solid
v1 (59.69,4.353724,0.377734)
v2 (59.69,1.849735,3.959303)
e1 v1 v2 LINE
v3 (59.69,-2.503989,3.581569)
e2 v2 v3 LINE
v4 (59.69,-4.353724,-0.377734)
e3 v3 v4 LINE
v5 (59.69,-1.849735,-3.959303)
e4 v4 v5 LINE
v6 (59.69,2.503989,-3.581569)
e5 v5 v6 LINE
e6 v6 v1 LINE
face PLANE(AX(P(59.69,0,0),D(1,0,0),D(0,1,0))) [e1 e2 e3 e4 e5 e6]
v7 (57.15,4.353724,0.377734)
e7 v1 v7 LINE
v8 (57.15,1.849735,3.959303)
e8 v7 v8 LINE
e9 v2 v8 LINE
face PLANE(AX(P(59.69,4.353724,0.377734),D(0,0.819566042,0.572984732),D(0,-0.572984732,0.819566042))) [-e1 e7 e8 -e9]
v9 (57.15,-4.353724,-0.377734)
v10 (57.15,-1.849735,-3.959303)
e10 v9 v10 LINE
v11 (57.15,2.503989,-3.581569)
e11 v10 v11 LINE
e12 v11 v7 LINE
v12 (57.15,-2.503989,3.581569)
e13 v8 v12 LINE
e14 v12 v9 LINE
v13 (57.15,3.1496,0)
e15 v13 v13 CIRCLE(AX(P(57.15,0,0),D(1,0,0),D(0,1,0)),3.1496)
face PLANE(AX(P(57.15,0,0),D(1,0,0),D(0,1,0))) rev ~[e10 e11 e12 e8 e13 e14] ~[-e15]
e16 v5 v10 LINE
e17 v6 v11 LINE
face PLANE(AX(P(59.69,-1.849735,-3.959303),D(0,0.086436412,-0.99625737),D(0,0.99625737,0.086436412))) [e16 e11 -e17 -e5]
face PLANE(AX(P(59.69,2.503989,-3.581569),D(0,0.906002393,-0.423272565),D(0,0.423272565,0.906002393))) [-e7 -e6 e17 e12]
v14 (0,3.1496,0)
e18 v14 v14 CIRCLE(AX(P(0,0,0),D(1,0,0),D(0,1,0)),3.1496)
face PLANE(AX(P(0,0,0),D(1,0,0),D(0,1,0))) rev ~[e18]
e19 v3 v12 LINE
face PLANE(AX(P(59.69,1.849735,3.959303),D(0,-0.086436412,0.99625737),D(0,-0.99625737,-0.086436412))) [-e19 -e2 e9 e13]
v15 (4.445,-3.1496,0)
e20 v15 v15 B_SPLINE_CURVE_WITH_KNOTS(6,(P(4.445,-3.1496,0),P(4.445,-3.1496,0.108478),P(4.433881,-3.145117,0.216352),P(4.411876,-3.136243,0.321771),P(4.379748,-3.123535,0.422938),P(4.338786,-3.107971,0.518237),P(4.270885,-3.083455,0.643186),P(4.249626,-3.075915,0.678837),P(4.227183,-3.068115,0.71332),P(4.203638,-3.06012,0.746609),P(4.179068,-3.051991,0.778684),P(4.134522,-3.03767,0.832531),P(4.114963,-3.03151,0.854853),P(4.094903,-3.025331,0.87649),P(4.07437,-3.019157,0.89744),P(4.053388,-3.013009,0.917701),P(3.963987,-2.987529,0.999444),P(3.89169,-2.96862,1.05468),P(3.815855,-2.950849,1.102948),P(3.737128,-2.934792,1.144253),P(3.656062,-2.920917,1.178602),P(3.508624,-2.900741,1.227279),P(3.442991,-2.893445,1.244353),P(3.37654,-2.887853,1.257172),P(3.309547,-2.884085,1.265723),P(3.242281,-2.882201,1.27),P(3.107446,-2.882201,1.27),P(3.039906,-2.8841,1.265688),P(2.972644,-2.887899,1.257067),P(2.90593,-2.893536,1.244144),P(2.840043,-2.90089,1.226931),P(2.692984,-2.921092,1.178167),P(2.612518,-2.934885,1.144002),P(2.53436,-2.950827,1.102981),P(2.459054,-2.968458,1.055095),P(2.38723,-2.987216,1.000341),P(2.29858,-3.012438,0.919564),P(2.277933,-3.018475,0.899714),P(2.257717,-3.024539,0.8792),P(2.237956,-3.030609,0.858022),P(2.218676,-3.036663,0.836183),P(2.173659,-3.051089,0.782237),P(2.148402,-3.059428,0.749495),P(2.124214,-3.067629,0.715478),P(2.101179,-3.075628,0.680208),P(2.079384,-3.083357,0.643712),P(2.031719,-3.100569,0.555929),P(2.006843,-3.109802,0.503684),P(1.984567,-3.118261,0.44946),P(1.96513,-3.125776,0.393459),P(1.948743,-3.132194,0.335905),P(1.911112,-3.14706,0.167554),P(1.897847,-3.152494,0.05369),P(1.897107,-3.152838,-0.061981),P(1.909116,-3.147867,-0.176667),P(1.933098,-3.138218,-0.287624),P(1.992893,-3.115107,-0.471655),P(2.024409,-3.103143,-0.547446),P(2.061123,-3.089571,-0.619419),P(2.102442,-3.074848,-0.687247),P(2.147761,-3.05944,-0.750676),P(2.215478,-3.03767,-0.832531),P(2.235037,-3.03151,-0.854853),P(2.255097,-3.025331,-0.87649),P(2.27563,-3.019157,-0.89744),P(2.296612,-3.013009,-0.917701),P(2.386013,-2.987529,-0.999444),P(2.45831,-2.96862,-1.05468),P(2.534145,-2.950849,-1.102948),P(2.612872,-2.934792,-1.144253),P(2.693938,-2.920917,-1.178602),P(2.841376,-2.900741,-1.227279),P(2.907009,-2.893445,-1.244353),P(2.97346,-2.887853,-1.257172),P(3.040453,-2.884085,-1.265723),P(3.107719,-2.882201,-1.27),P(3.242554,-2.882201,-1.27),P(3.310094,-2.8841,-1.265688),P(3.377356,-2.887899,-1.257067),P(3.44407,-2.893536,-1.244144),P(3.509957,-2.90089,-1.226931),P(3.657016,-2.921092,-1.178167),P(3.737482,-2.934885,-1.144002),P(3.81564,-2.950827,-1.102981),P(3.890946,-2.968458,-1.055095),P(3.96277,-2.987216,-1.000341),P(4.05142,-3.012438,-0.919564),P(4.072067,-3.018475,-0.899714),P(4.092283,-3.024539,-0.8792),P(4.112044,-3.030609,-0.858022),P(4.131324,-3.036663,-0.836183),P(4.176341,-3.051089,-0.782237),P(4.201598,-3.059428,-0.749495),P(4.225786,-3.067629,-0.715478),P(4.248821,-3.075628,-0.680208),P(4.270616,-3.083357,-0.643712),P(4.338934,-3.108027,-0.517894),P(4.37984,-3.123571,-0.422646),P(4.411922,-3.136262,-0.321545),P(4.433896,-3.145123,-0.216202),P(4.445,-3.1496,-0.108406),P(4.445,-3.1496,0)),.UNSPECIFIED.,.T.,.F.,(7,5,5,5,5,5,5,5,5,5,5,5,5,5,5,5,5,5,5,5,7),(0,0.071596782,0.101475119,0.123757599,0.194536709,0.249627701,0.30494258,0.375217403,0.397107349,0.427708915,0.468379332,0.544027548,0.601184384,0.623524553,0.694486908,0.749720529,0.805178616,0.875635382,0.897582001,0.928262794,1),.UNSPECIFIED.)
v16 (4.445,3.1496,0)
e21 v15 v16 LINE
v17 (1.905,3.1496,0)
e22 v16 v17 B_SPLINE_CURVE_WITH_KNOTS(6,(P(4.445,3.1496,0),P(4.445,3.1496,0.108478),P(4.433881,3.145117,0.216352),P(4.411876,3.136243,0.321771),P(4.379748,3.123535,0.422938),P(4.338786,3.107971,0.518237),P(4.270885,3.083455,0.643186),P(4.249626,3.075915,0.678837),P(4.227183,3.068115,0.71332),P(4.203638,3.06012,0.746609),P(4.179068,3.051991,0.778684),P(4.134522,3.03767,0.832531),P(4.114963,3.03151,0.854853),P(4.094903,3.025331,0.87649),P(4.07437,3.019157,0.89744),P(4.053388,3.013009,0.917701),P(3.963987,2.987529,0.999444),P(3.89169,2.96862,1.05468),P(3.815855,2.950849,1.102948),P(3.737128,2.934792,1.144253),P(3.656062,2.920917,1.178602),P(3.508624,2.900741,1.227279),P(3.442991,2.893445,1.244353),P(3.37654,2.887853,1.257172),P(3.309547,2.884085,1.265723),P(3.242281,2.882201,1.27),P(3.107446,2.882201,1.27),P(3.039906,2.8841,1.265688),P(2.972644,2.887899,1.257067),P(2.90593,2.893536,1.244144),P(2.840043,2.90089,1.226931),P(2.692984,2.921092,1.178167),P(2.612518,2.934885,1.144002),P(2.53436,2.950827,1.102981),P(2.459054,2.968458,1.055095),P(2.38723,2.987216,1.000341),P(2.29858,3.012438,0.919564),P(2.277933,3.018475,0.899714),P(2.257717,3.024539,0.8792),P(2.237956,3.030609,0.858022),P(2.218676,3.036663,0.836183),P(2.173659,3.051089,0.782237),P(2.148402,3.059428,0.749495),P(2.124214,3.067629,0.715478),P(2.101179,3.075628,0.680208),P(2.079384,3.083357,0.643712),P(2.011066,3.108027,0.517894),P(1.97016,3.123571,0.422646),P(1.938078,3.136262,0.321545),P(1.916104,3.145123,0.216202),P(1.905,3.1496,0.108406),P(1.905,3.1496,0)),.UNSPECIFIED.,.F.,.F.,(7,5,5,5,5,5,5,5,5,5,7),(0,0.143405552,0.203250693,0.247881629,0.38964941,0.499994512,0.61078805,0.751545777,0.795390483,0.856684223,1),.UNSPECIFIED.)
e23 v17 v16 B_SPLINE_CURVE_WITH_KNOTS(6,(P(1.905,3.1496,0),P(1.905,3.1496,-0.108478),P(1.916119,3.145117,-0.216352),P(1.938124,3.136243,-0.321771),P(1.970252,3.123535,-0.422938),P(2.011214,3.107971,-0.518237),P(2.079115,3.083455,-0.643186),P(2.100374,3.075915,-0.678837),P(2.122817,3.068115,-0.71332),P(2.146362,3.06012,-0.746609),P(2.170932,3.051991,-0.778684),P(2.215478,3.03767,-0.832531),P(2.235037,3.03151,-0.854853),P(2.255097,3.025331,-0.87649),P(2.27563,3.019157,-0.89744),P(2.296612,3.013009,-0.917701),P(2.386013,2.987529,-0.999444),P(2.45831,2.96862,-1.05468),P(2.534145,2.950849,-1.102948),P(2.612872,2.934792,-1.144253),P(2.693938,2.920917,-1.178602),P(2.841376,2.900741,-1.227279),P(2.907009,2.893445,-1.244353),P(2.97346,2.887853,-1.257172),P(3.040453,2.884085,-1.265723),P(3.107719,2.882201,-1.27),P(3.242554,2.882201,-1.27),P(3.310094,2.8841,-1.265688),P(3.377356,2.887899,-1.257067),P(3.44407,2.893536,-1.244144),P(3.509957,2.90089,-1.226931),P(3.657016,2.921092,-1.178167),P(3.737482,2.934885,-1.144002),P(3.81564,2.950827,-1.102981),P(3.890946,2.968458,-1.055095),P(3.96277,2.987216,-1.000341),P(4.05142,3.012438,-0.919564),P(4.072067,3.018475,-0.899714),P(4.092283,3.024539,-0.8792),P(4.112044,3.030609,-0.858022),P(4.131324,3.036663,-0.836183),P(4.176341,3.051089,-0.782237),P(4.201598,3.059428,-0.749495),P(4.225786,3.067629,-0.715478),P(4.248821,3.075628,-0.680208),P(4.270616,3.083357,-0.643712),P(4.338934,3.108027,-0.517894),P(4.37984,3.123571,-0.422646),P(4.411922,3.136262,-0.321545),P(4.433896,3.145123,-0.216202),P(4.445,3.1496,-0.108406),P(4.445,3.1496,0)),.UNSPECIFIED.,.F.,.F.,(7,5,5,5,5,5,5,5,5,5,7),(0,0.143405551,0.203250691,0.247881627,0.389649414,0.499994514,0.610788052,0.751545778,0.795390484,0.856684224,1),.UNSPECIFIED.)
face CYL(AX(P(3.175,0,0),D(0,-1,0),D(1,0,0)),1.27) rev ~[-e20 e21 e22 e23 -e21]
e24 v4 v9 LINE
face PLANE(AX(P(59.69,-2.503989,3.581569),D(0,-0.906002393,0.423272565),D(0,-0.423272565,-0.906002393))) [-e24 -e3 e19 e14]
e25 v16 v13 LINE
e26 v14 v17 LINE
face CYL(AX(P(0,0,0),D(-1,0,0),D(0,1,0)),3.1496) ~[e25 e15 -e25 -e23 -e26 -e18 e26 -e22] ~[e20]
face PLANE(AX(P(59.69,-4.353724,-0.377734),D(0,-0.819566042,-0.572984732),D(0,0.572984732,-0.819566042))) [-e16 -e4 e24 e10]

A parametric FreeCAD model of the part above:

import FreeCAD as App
import Part
import Sketcher
from FreeCAD import Vector
Q = App.Units.Quantity


def add_polygon(sketch, points):
    """Adds a closed chain of lines whose ends are joined by coincident constraints."""
    first, n = sketch.GeometryCount, len(points)
    for a, b in zip(points, points[1:] + points[:1]):
        sketch.addGeometry(Part.LineSegment(App.Vector(*a, 0), App.Vector(*b, 0)), False)
    for i in range(n):
        sketch.addConstraint(Sketcher.Constraint("Coincident", first + i, 2, first + (i + 1) % n, 1))

doc = App.newDocument("Part")
body = doc.addObject("PartDesign::Body", "Body")

sketch1 = doc.addObject("Sketcher::SketchObject", "Sketch")
body.addObject(sketch1)
sketch1.AttachmentSupport = (doc.YZ_Plane, [""])
sketch1.MapMode = "FlatFace"
sketch1.addGeometry(Part.Circle(Vector(0, 0, 0), Vector(0, 0, 1), 3.1), False)
sketch1.addConstraint([
    Sketcher.Constraint("Coincident", 0, 3, -1, 1),
    Sketcher.Constraint("Diameter", 0, Q("0.248 in")),
])
pad1 = doc.addObject("PartDesign::Pad", "Pad")
body.addObject(pad1)
pad1.Profile = sketch1
pad1.Length = Q("2.35 in")

sketch2 = doc.addObject("Sketcher::SketchObject", "Sketch001")
body.addObject(sketch2)
sketch2.AttachmentSupport = (doc.XZ_Plane, [""])
sketch2.MapMode = "FlatFace"
sketch2.addGeometry(Part.Circle(Vector(3.2, 0, 0), Vector(0, 0, 1), 1.3), False)
sketch2.addConstraint([
    Sketcher.Constraint("PointOnObject", 0, 3, -1),
    Sketcher.Constraint("Diameter", 0, Q("0.1 in")),
    Sketcher.Constraint("DistanceX", -1, 1, 0, 3, Q("0.125 in")),
])
pocket1 = doc.addObject("PartDesign::Pocket", "Pocket")
body.addObject(pocket1)
pocket1.Profile = sketch2
pocket1.Length = Q("0.68 in")
pocket1.Reversed = True

sketch3 = doc.addObject("Sketcher::SketchObject", "Sketch002")
body.addObject(sketch3)
sketch3.AttachmentSupport = (doc.YZ_Plane, [""])
sketch3.MapMode = "FlatFace"
sketch3.AttachmentOffset = App.Placement(Vector(0, 0, 2.35 * 25.4), App.Rotation())
add_polygon(sketch3, [(2.5, -3.6), (4.4, 0.4), (1.8, 4), (-2.5, 3.6), (-4.4, -0.4), (-1.8, -4)])
sketch3.addGeometry(Part.Circle(Vector(0, 0, 0), Vector(0, 0, 1), 3.1), False)
sketch3.addConstraint([
    Sketcher.Constraint("Coincident", 6, 3, -1, 1),
    Sketcher.Constraint("Symmetric", 0, 2, 3, 2, -1, 1),
    Sketcher.Constraint("Symmetric", 1, 2, 4, 2, -1, 1),
    Sketcher.Constraint("Symmetric", 2, 2, 5, 2, -1, 1),
    Sketcher.Constraint("Equal", 0, 1),
    Sketcher.Constraint("Equal", 1, 2),
    Sketcher.Constraint("Diameter", 6, Q("0.248 in")),
    Sketcher.Constraint("Distance", 0, 4.37008),
    Sketcher.Constraint("DistanceX", 2, 2, -1, 1, 2.503989),
    Sketcher.Constraint("DistanceY", -1, 1, 2, 2, 3.581569),
    Sketcher.Constraint("DistanceX", 1, 2, 0, 2, 2.503989),
])
pad2 = doc.addObject("PartDesign::Pad", "Pad001")
body.addObject(pad2)
pad2.Profile = sketch3
pad2.Length = Q("0.1 in")
pad2.Reversed = True

sketch4 = doc.addObject("Sketcher::SketchObject", "Sketch003")
body.addObject(sketch4)
sketch4.AttachmentSupport = (doc.XZ_Plane, [""])
sketch4.MapMode = "FlatFace"
sketch4.addGeometry(Part.Circle(Vector(3.2, 0, 0), Vector(0, 0, 1), 1.3), False)
sketch4.addConstraint([
    Sketcher.Constraint("PointOnObject", 0, 3, -1),
    Sketcher.Constraint("Diameter", 0, Q("0.1 in")),
    Sketcher.Constraint("DistanceX", -1, 1, 0, 3, Q("0.125 in")),
])
pocket2 = doc.addObject("PartDesign::Pocket", "Pocket001")
body.addObject(pocket2)
pocket2.Profile = sketch4
pocket2.Length = Q("0.561 in")

doc.recompute()
